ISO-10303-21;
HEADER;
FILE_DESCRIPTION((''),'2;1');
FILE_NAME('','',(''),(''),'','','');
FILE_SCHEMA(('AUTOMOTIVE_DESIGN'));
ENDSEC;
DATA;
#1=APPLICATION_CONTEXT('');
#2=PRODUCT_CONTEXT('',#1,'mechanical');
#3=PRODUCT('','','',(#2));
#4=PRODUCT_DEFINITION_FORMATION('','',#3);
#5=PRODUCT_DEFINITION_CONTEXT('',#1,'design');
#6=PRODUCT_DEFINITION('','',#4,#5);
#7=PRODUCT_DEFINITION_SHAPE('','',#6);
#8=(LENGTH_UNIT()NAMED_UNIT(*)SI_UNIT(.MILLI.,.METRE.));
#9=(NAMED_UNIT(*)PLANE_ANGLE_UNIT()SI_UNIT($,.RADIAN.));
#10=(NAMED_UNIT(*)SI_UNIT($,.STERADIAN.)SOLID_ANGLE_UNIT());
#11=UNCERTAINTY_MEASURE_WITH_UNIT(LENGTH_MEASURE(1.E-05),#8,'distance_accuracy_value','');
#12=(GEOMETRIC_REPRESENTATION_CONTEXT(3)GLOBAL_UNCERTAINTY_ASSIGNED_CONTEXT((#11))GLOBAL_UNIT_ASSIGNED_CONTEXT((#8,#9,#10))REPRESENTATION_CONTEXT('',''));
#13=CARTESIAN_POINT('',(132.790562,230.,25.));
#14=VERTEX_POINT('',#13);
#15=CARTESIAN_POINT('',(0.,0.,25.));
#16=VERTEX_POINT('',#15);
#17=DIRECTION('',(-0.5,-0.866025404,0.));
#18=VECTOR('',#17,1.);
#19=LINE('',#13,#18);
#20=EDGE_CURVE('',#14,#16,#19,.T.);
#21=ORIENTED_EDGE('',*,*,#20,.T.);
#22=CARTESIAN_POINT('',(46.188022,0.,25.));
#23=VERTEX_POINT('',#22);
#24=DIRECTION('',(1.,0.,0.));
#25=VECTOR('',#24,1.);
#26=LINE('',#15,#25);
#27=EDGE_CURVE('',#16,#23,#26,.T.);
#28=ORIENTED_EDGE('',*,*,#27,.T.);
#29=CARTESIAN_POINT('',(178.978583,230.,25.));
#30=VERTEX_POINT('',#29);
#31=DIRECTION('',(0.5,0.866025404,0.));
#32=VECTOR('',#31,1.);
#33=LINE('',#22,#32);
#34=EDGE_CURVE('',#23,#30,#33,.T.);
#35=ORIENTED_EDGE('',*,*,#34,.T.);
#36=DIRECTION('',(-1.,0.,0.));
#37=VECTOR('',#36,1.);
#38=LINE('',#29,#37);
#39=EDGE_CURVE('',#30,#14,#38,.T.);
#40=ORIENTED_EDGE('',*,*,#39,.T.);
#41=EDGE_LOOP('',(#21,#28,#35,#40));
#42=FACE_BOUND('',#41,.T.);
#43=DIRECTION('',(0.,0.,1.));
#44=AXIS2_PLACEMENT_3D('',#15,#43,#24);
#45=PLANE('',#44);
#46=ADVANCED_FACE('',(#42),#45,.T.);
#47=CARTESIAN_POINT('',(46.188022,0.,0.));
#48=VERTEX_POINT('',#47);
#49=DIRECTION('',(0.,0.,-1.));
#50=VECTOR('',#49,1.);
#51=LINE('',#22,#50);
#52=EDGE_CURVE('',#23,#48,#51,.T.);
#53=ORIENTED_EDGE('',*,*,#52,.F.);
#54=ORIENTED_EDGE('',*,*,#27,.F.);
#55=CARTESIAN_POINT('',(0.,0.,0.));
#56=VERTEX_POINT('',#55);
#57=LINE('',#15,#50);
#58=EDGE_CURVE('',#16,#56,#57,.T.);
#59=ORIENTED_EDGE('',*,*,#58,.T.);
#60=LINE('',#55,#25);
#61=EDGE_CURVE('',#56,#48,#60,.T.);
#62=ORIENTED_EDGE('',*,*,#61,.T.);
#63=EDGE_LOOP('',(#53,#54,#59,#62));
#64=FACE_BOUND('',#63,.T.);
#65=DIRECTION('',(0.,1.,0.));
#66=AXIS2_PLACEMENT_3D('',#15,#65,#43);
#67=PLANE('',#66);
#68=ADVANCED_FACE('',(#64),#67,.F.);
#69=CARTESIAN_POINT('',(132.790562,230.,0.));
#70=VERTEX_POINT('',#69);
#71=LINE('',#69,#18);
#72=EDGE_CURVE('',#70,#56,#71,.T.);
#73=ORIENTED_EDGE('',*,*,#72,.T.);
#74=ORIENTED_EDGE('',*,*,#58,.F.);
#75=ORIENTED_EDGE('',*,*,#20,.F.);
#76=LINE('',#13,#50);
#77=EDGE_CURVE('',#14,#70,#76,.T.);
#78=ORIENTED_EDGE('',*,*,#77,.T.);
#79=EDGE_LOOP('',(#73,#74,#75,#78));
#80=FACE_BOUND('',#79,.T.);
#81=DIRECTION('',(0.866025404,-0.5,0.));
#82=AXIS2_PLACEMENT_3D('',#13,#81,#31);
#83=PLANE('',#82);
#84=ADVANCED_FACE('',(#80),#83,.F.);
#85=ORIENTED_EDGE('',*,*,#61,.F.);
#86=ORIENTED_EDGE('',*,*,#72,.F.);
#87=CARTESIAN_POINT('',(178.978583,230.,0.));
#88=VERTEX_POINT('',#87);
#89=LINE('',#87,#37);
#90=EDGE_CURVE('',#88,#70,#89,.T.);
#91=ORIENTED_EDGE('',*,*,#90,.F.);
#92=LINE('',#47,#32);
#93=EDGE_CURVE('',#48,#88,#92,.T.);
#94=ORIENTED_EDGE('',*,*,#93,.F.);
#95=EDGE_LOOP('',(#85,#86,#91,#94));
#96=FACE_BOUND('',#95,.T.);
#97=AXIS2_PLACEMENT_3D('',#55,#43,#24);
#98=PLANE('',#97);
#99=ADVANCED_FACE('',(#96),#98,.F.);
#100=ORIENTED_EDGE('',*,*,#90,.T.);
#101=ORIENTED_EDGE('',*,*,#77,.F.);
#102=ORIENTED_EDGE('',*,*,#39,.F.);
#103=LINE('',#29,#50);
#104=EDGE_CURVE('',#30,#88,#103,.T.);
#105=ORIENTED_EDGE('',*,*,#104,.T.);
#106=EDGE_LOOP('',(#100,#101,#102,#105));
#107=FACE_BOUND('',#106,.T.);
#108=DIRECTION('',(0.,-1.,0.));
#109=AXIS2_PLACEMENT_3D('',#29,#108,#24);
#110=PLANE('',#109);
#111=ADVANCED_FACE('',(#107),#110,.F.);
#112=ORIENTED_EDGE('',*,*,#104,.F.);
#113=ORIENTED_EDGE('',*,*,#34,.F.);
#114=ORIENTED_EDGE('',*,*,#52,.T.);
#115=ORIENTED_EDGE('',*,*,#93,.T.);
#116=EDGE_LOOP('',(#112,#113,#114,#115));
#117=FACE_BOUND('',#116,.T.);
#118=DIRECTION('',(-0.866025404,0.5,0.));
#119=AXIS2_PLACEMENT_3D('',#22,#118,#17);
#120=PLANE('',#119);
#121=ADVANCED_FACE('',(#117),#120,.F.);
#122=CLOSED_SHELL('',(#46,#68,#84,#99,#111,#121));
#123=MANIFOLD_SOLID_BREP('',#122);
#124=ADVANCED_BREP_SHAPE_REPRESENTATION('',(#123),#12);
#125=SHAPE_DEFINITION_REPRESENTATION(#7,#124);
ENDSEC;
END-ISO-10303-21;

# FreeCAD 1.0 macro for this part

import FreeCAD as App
import Part
import Sketcher
from FreeCAD import Vector
Q = App.Units.Quantity


def add_polygon(sketch, points):
    """Adds a closed chain of lines whose ends are joined by coincident constraints."""
    first, n = sketch.GeometryCount, len(points)
    for a, b in zip(points, points[1:] + points[:1]):
        sketch.addGeometry(Part.LineSegment(App.Vector(*a, 0), App.Vector(*b, 0)), False)
    for i in range(n):
        sketch.addConstraint(Sketcher.Constraint("Coincident", first + i, 2, first + (i + 1) % n, 1))

doc = App.newDocument("Part")
body = doc.addObject("PartDesign::Body", "Body")

# Sketch on XY plane
sketch1 = body.newObject("Sketcher::SketchObject", "Sketch")
sketch1.AttachmentSupport = (doc.getObject("XY_Plane"), [""])
sketch1.MapMode = "FlatFace"
add_polygon(sketch1, [(0, 0), (46.188022, 0), (178.978583, 230), (132.790562, 230)])  # lines 0-3
sketch1.addConstraint([
    Sketcher.Constraint("Horizontal", 0),
    Sketcher.Constraint("Horizontal", 2),
    Sketcher.Constraint("Coincident", 3, 2, -1, 1),
    Sketcher.Constraint("Parallel", 1, 3),
    Sketcher.Constraint("Angle", 1, Q("60 deg")),
    Sketcher.Constraint("DistanceY", -1, 1, 1, 2, 230.0),
    Sketcher.Constraint("DistanceX", 0, 1, 0, 2, 46.188022),
])
pad1 = body.newObject("PartDesign::Pad", "Pad")
pad1.Profile = sketch1
pad1.Length = 25

doc.recompute()
